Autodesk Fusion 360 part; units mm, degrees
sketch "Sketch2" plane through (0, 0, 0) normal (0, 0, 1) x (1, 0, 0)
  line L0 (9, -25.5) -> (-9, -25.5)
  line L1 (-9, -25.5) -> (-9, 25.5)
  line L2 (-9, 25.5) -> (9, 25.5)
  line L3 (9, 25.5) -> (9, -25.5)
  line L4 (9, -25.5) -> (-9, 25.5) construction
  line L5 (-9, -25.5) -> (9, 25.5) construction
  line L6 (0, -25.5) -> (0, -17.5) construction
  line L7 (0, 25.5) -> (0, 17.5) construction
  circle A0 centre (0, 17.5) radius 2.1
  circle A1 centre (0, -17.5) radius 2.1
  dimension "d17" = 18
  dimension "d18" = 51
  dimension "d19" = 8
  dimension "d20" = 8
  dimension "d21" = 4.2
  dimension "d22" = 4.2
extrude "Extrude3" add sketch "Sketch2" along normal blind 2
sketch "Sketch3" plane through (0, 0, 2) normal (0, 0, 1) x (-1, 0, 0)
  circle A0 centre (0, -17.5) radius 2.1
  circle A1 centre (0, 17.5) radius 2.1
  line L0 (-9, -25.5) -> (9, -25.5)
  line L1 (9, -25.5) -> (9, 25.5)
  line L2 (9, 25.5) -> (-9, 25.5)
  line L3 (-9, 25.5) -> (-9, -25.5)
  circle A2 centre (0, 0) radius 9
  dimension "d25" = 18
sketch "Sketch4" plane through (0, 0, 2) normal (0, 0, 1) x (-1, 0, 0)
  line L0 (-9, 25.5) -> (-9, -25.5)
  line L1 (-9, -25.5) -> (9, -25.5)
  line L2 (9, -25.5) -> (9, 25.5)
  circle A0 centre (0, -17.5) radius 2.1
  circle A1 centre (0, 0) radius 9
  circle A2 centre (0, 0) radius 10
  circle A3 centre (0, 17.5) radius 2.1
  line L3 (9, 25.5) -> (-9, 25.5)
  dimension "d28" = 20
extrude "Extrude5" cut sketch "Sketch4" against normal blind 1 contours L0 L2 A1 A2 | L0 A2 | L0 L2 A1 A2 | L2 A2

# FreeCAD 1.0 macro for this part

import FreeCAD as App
import Part
import Sketcher

V = App.Vector
Q = App.Units.Quantity


def add_polygon(sketch, points):
    """Adds a closed chain of lines whose ends are joined by coincident constraints."""
    first, n = sketch.GeometryCount, len(points)
    for a, b in zip(points, points[1:] + points[:1]):
        sketch.addGeometry(Part.LineSegment(App.Vector(*a, 0), App.Vector(*b, 0)), False)
    for i in range(n):
        sketch.addConstraint(Sketcher.Constraint("Coincident", first + i, 2, first + (i + 1) % n, 1))

doc = App.newDocument("Part")
body = doc.addObject("PartDesign::Body", "Body")

sketch1 = body.newObject("Sketcher::SketchObject", "Sketch")
sketch1.AttachmentSupport = (doc.getObject("XY_Plane"), [""])
sketch1.MapMode = "FlatFace"
add_polygon(sketch1, [(-9, -25.5), (9, -25.5), (9, 25.5), (-9, 25.5)])
sketch1.addGeometry(Part.Circle(V(0, -17.5, 0), V(0, 0, 1), 2.1), False)
sketch1.addGeometry(Part.Circle(V(0, 17.5, 0), V(0, 0, 1), 2.1), False)
sketch1.addConstraint([
    Sketcher.Constraint("Horizontal", 0),
    Sketcher.Constraint("Vertical", 1),
    Sketcher.Constraint("Horizontal", 2),
    Sketcher.Constraint("Vertical", 3),
    Sketcher.Constraint("Equal", 4, 5),
    Sketcher.Constraint("Symmetric", 4, 3, 5, 3, -1, 1),
    Sketcher.Constraint("Symmetric", 0, 2, 2, 2, -1, 1),
    Sketcher.Constraint("PointOnObject", 4, 3, -2),
    Sketcher.Constraint("Diameter", 4, Q("4.2 mm")),
    Sketcher.Constraint("DistanceX", 0, 1, 0, 2, Q("18 mm")),
    Sketcher.Constraint("DistanceY", 1, 1, 1, 2, Q("51 mm")),
    Sketcher.Constraint("DistanceY", 0, 2, 4, 3, Q("8 mm")),
])
pad1 = body.newObject("PartDesign::Pad", "Pad")
pad1.Profile = sketch1
pad1.Length = 2

sketch2 = body.newObject("Sketcher::SketchObject", "Sketch001")
sketch2.AttachmentSupport = (doc.getObject("XY_Plane"), [""])
sketch2.MapMode = "FlatFace"
sketch2.AttachmentOffset = App.Placement(V(0, 0, 2), App.Rotation())
sketch2.addGeometry([
    Part.Circle(V(0, 0, 0), V(0, 0, 1), 10),
    Part.Circle(V(0, 0, 0), V(0, 0, 1), 9),
], False)
sketch2.addConstraint([
    Sketcher.Constraint("Coincident", 0, 3, -1, 1),
    Sketcher.Constraint("Coincident", 1, 3, -1, 1),
    Sketcher.Constraint("Diameter", 0, Q("20 mm")),
    Sketcher.Constraint("Diameter", 1, Q("18 mm")),
])
pocket1 = body.newObject("PartDesign::Pocket", "Pocket")
pocket1.Profile = sketch2
pocket1.Length = 1

doc.recompute()
